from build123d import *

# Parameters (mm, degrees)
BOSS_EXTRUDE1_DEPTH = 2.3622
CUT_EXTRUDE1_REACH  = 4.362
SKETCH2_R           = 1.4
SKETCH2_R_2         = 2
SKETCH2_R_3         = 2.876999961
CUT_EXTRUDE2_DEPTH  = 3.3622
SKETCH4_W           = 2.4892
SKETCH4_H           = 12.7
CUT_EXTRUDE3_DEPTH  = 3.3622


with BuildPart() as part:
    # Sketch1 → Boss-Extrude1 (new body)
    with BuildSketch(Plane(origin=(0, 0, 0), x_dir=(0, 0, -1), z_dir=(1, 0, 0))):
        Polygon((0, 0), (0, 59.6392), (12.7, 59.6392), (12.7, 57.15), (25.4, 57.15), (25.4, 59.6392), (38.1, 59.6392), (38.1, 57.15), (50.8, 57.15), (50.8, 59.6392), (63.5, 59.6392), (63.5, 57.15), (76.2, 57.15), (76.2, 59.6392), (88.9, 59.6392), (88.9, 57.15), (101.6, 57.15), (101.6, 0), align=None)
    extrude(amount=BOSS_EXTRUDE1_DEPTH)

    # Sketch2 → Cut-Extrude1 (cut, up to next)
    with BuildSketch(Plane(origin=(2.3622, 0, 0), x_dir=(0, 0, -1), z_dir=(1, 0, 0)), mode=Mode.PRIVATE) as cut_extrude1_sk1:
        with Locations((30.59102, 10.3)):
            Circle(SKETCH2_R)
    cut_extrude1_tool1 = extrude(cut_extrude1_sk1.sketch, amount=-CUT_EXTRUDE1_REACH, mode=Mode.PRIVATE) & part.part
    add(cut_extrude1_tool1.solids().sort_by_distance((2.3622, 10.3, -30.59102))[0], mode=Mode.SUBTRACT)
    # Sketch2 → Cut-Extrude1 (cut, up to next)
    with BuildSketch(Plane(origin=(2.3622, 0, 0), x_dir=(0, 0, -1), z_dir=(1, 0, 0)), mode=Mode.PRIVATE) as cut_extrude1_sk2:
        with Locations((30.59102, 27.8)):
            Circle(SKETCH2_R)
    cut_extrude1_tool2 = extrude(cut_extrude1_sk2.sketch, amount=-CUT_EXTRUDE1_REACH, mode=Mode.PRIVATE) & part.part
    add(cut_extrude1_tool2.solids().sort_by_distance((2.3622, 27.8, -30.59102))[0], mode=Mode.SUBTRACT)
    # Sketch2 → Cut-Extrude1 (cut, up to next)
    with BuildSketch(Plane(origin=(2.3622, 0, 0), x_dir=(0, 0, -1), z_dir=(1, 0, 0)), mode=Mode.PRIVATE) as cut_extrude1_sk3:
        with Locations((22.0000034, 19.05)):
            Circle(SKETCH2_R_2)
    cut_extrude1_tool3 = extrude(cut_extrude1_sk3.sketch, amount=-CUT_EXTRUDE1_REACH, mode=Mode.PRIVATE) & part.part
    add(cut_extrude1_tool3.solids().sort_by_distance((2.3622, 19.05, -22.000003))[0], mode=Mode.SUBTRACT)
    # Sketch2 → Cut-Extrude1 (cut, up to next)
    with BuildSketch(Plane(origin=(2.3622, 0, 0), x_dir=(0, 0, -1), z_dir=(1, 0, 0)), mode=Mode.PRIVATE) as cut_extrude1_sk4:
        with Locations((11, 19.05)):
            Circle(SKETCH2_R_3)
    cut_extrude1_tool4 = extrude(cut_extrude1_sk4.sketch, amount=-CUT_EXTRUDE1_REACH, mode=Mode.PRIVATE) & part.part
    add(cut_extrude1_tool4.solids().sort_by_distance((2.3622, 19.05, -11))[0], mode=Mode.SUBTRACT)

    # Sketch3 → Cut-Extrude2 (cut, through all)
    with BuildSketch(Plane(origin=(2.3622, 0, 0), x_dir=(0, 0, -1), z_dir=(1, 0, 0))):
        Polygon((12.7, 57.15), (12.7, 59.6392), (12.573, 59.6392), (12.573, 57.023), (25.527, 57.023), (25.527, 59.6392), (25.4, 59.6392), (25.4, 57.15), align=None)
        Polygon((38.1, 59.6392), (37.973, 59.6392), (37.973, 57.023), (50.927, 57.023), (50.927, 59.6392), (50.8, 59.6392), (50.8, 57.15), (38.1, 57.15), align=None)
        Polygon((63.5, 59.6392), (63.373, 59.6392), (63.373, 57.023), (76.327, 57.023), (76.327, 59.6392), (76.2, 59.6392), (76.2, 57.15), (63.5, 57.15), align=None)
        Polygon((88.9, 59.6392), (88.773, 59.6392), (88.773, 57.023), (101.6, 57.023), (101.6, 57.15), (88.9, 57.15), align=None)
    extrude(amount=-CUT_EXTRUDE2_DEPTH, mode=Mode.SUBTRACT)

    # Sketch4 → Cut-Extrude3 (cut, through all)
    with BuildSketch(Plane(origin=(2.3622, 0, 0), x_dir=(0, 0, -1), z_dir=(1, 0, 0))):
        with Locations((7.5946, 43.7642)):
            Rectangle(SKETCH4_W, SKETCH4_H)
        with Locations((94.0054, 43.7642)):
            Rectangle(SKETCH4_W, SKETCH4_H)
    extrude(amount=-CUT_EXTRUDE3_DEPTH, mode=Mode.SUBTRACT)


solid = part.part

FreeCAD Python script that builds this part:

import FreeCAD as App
import Part
import Sketcher
Q = App.Units.Quantity

doc = App.newDocument("Part")
body = doc.addObject("PartDesign::Body", "Body")

sketch1 = body.newObject("Sketcher::SketchObject", "Sketch")
sketch1.AttachmentSupport = (doc.getObject("YZ_Plane"), [""])
sketch1.MapMode = "FlatFace"
sketch1.addGeometry(Part.LineSegment(App.Vector(59.6392, 0, 0), App.Vector(0, 0, 0)), False)
sketch1.addGeometry(Part.LineSegment(App.Vector(0, 0, 0), App.Vector(0, -101.6, 0)), False)
sketch1.addGeometry(Part.LineSegment(App.Vector(0, -101.6, 0), App.Vector(57.15, -101.6, 0)), False)
sketch1.addGeometry(Part.LineSegment(App.Vector(57.15, -101.6, 0), App.Vector(57.15, -88.9, 0)), False)
sketch1.addGeometry(Part.LineSegment(App.Vector(57.15, -88.9, 0), App.Vector(59.6392, -88.9, 0)), False)
sketch1.addGeometry(Part.LineSegment(App.Vector(59.6392, -88.9, 0), App.Vector(59.6392, -76.2, 0)), False)
sketch1.addGeometry(Part.LineSegment(App.Vector(59.6392, -76.2, 0), App.Vector(57.15, -76.2, 0)), False)
sketch1.addGeometry(Part.LineSegment(App.Vector(57.15, -76.2, 0), App.Vector(57.15, -63.5, 0)), False)
sketch1.addGeometry(Part.LineSegment(App.Vector(57.15, -63.5, 0), App.Vector(59.6392, -63.5, 0)), False)
sketch1.addGeometry(Part.LineSegment(App.Vector(59.6392, -63.5, 0), App.Vector(59.6392, -50.8, 0)), False)
sketch1.addGeometry(Part.LineSegment(App.Vector(59.6392, -50.8, 0), App.Vector(57.15, -50.8, 0)), False)
sketch1.addGeometry(Part.LineSegment(App.Vector(57.15, -50.8, 0), App.Vector(57.15, -38.1, 0)), False)
sketch1.addGeometry(Part.LineSegment(App.Vector(57.15, -38.1, 0), App.Vector(59.6392, -38.1, 0)), False)
sketch1.addGeometry(Part.LineSegment(App.Vector(59.6392, -38.1, 0), App.Vector(59.6392, -25.4, 0)), False)
sketch1.addGeometry(Part.LineSegment(App.Vector(59.6392, -25.4, 0), App.Vector(57.15, -25.4, 0)), False)
sketch1.addGeometry(Part.LineSegment(App.Vector(57.15, -25.4, 0), App.Vector(57.15, -12.7, 0)), False)
sketch1.addGeometry(Part.LineSegment(App.Vector(57.15, -12.7, 0), App.Vector(59.6392, -12.7, 0)), False)
sketch1.addGeometry(Part.LineSegment(App.Vector(59.6392, -12.7, 0), App.Vector(59.6392, 0, 0)), False)
sketch1.addConstraint(Sketcher.Constraint("Coincident", 0, 2, 1, 1))
sketch1.addConstraint(Sketcher.Constraint("Coincident", 1, 2, 2, 1))
sketch1.addConstraint(Sketcher.Constraint("Coincident", 2, 2, 3, 1))
sketch1.addConstraint(Sketcher.Constraint("Coincident", 3, 2, 4, 1))
sketch1.addConstraint(Sketcher.Constraint("Coincident", 4, 2, 5, 1))
sketch1.addConstraint(Sketcher.Constraint("Coincident", 5, 2, 6, 1))
sketch1.addConstraint(Sketcher.Constraint("Coincident", 6, 2, 7, 1))
sketch1.addConstraint(Sketcher.Constraint("Coincident", 7, 2, 8, 1))
sketch1.addConstraint(Sketcher.Constraint("Coincident", 8, 2, 9, 1))
sketch1.addConstraint(Sketcher.Constraint("Coincident", 9, 2, 10, 1))
sketch1.addConstraint(Sketcher.Constraint("Coincident", 10, 2, 11, 1))
sketch1.addConstraint(Sketcher.Constraint("Coincident", 11, 2, 12, 1))
sketch1.addConstraint(Sketcher.Constraint("Coincident", 12, 2, 13, 1))
sketch1.addConstraint(Sketcher.Constraint("Coincident", 13, 2, 14, 1))
sketch1.addConstraint(Sketcher.Constraint("Coincident", 14, 2, 15, 1))
sketch1.addConstraint(Sketcher.Constraint("Coincident", 15, 2, 16, 1))
sketch1.addConstraint(Sketcher.Constraint("Coincident", 16, 2, 17, 1))
sketch1.addConstraint(Sketcher.Constraint("Coincident", 17, 2, 0, 1))
sketch1.addConstraint(Sketcher.Constraint("Horizontal", 0))
sketch1.addConstraint(Sketcher.Constraint("Vertical", 1))
sketch1.addConstraint(Sketcher.Constraint("Horizontal", 2))
sketch1.addConstraint(Sketcher.Constraint("Vertical", 3))
sketch1.addConstraint(Sketcher.Constraint("Horizontal", 4))
sketch1.addConstraint(Sketcher.Constraint("Vertical", 5))
sketch1.addConstraint(Sketcher.Constraint("Horizontal", 6))
sketch1.addConstraint(Sketcher.Constraint("Vertical", 7))
sketch1.addConstraint(Sketcher.Constraint("Horizontal", 8))
sketch1.addConstraint(Sketcher.Constraint("Vertical", 9))
sketch1.addConstraint(Sketcher.Constraint("Horizontal", 10))
sketch1.addConstraint(Sketcher.Constraint("Vertical", 11))
sketch1.addConstraint(Sketcher.Constraint("Horizontal", 12))
sketch1.addConstraint(Sketcher.Constraint("Vertical", 13))
sketch1.addConstraint(Sketcher.Constraint("Horizontal", 14))
sketch1.addConstraint(Sketcher.Constraint("Vertical", 15))
sketch1.addConstraint(Sketcher.Constraint("Horizontal", 16))
sketch1.addConstraint(Sketcher.Constraint("Vertical", 17))
sketch1.addConstraint(Sketcher.Constraint("Coincident", 0, 2, -1, 1))
sketch1.addConstraint(Sketcher.Constraint("Vertical", 3, 2, 6, 2))
sketch1.addConstraint(Sketcher.Constraint("Vertical", 5, 2, 8, 2))
sketch1.addConstraint(Sketcher.Constraint("Vertical", 7, 2, 10, 2))
sketch1.addConstraint(Sketcher.Constraint("Vertical", 9, 2, 12, 2))
sketch1.addConstraint(Sketcher.Constraint("Vertical", 11, 2, 14, 2))
sketch1.addConstraint(Sketcher.Constraint("Vertical", 13, 2, 16, 2))
sketch1.addConstraint(Sketcher.Constraint("Equal", 3, 5))
sketch1.addConstraint(Sketcher.Constraint("Equal", 5, 7))
sketch1.addConstraint(Sketcher.Constraint("Equal", 7, 9))
sketch1.addConstraint(Sketcher.Constraint("Equal", 9, 11))
sketch1.addConstraint(Sketcher.Constraint("Equal", 11, 13))
sketch1.addConstraint(Sketcher.Constraint("Equal", 13, 15))
sketch1.addConstraint(Sketcher.Constraint("Equal", 15, 17))
sketch1.addConstraint(Sketcher.Constraint("DistanceY", 1, 2, 1, 1, Q("4 in")))
sketch1.addConstraint(Sketcher.Constraint("DistanceX", 2, 1, 2, 2, Q("2.25 in")))
sketch1.addConstraint(Sketcher.Constraint("DistanceX", 0, 2, 0, 1, Q("2.348 in")))
pad1 = body.newObject("PartDesign::Pad", "Pad")
pad1.Profile = sketch1
pad1.Length = Q("0.093 in")

sketch2 = body.newObject("Sketcher::SketchObject", "Sketch001")
sketch2.AttachmentSupport = (doc.getObject("YZ_Plane"), [""])
sketch2.MapMode = "FlatFace"
sketch2.AttachmentOffset = App.Placement(App.Vector(0, 0, 0.093 * 25.4), App.Rotation())
sketch2.addGeometry(Part.Circle(App.Vector(10.3, -30.59102, 0), App.Vector(0, 0, 1), 1.4), False)
sketch2.addConstraint(Sketcher.Constraint("Diameter", 0, Q("2.8 mm")))
sketch2.addConstraint(Sketcher.Constraint("DistanceX", -1, 1, 0, 3, Q("10.3 mm")))
sketch2.addConstraint(Sketcher.Constraint("DistanceY", 0, 3, -1, 1, Q("30.59102 mm")))
pocket1 = body.newObject("PartDesign::Pocket", "Pocket")
pocket1.Profile = sketch2
pocket1.Type = "UpToFirst"

sketch3 = body.newObject("Sketcher::SketchObject", "Sketch002")
sketch3.AttachmentSupport = (doc.getObject("YZ_Plane"), [""])
sketch3.MapMode = "FlatFace"
sketch3.AttachmentOffset = App.Placement(App.Vector(0, 0, 0.093 * 25.4), App.Rotation())
sketch3.addGeometry(Part.Circle(App.Vector(27.8, -30.59102, 0), App.Vector(0, 0, 1), 1.4), False)
sketch3.addConstraint(Sketcher.Constraint("Diameter", 0, Q("2.8 mm")))
sketch3.addConstraint(Sketcher.Constraint("DistanceX", -1, 1, 0, 3, Q("27.8 mm")))
sketch3.addConstraint(Sketcher.Constraint("DistanceY", 0, 3, -1, 1, Q("30.59102 mm")))
pocket2 = body.newObject("PartDesign::Pocket", "Pocket001")
pocket2.Profile = sketch3
pocket2.Type = "UpToFirst"

sketch4 = body.newObject("Sketcher::SketchObject", "Sketch003")
sketch4.AttachmentSupport = (doc.getObject("YZ_Plane"), [""])
sketch4.MapMode = "FlatFace"
sketch4.AttachmentOffset = App.Placement(App.Vector(0, 0, 0.093 * 25.4), App.Rotation())
sketch4.addGeometry(Part.Circle(App.Vector(19.05, -22.000003, 0), App.Vector(0, 0, 1), 2), False)
sketch4.addConstraint(Sketcher.Constraint("Diameter", 0, Q("4 mm")))
sketch4.addConstraint(Sketcher.Constraint("DistanceX", -1, 1, 0, 3, Q("0.75 in")))
sketch4.addConstraint(Sketcher.Constraint("DistanceY", 0, 3, -1, 1, Q("22.000003 mm")))
pocket3 = body.newObject("PartDesign::Pocket", "Pocket002")
pocket3.Profile = sketch4
pocket3.Type = "UpToFirst"

sketch5 = body.newObject("Sketcher::SketchObject", "Sketch004")
sketch5.AttachmentSupport = (doc.getObject("YZ_Plane"), [""])
sketch5.MapMode = "FlatFace"
sketch5.AttachmentOffset = App.Placement(App.Vector(0, 0, 0.093 * 25.4), App.Rotation())
sketch5.addGeometry(Part.Circle(App.Vector(19.05, -11, 0), App.Vector(0, 0, 1), 2.877), False)
sketch5.addConstraint(Sketcher.Constraint("Diameter", 0, Q("5.754 mm")))
sketch5.addConstraint(Sketcher.Constraint("DistanceX", -1, 1, 0, 3, Q("0.75 in")))
sketch5.addConstraint(Sketcher.Constraint("DistanceY", 0, 3, -1, 1, Q("11 mm")))
pocket4 = body.newObject("PartDesign::Pocket", "Pocket003")
pocket4.Profile = sketch5
pocket4.Type = "UpToFirst"

sketch6 = body.newObject("Sketcher::SketchObject", "Sketch005")
sketch6.AttachmentSupport = (doc.getObject("YZ_Plane"), [""])
sketch6.MapMode = "FlatFace"
sketch6.AttachmentOffset = App.Placement(App.Vector(0, 0, 0.093 * 25.4), App.Rotation())
sketch6.addGeometry(Part.LineSegment(App.Vector(57.15, -12.7, 0), App.Vector(59.6392, -12.7, 0)), False)
sketch6.addGeometry(Part.LineSegment(App.Vector(59.6392, -12.7, 0), App.Vector(59.6392, -12.573, 0)), False)
sketch6.addGeometry(Part.LineSegment(App.Vector(59.6392, -12.573, 0), App.Vector(57.023, -12.573, 0)), False)
sketch6.addGeometry(Part.LineSegment(App.Vector(57.023, -12.573, 0), App.Vector(57.023, -25.527, 0)), False)
sketch6.addGeometry(Part.LineSegment(App.Vector(57.023, -25.527, 0), App.Vector(59.6392, -25.527, 0)), False)
sketch6.addGeometry(Part.LineSegment(App.Vector(59.6392, -25.527, 0), App.Vector(59.6392, -25.4, 0)), False)
sketch6.addGeometry(Part.LineSegment(App.Vector(59.6392, -25.4, 0), App.Vector(57.15, -25.4, 0)), False)
sketch6.addGeometry(Part.LineSegment(App.Vector(57.15, -25.4, 0), App.Vector(57.15, -12.7, 0)), False)
sketch6.addGeometry(Part.LineSegment(App.Vector(59.6392, -38.1, 0), App.Vector(59.6392, -37.973, 0)), False)
sketch6.addGeometry(Part.LineSegment(App.Vector(59.6392, -37.973, 0), App.Vector(57.023, -37.973, 0)), False)
sketch6.addGeometry(Part.LineSegment(App.Vector(57.023, -37.973, 0), App.Vector(57.023, -50.927, 0)), False)
sketch6.addGeometry(Part.LineSegment(App.Vector(57.023, -50.927, 0), App.Vector(59.6392, -50.927, 0)), False)
sketch6.addGeometry(Part.LineSegment(App.Vector(59.6392, -50.927, 0), App.Vector(59.6392, -50.8, 0)), False)
sketch6.addGeometry(Part.LineSegment(App.Vector(59.6392, -50.8, 0), App.Vector(57.15, -50.8, 0)), False)
sketch6.addGeometry(Part.LineSegment(App.Vector(57.15, -50.8, 0), App.Vector(57.15, -38.1, 0)), False)
sketch6.addGeometry(Part.LineSegment(App.Vector(57.15, -38.1, 0), App.Vector(59.6392, -38.1, 0)), False)
sketch6.addGeometry(Part.LineSegment(App.Vector(59.6392, -63.5, 0), App.Vector(59.6392, -63.373, 0)), False)
sketch6.addGeometry(Part.LineSegment(App.Vector(59.6392, -63.373, 0), App.Vector(57.023, -63.373, 0)), False)
sketch6.addGeometry(Part.LineSegment(App.Vector(57.023, -63.373, 0), App.Vector(57.023, -76.327, 0)), False)
sketch6.addGeometry(Part.LineSegment(App.Vector(57.023, -76.327, 0), App.Vector(59.6392, -76.327, 0)), False)
sketch6.addGeometry(Part.LineSegment(App.Vector(59.6392, -76.327, 0), App.Vector(59.6392, -76.2, 0)), False)
sketch6.addGeometry(Part.LineSegment(App.Vector(59.6392, -76.2, 0), App.Vector(57.15, -76.2, 0)), False)
sketch6.addGeometry(Part.LineSegment(App.Vector(57.15, -76.2, 0), App.Vector(57.15, -63.5, 0)), False)
sketch6.addGeometry(Part.LineSegment(App.Vector(57.15, -63.5, 0), App.Vector(59.6392, -63.5, 0)), False)
sketch6.addGeometry(Part.LineSegment(App.Vector(59.6392, -88.9, 0), App.Vector(59.6392, -88.773, 0)), False)
sketch6.addGeometry(Part.LineSegment(App.Vector(59.6392, -88.773, 0), App.Vector(57.023, -88.773, 0)), False)
sketch6.addGeometry(Part.LineSegment(App.Vector(57.023, -88.773, 0), App.Vector(57.023, -101.6, 0)), False)
sketch6.addGeometry(Part.LineSegment(App.Vector(57.023, -101.6, 0), App.Vector(57.15, -101.6, 0)), False)
sketch6.addGeometry(Part.LineSegment(App.Vector(57.15, -101.6, 0), App.Vector(57.15, -88.9, 0)), False)
sketch6.addGeometry(Part.LineSegment(App.Vector(57.15, -88.9, 0), App.Vector(59.6392, -88.9, 0)), False)
sketch6.addConstraint(Sketcher.Constraint("Coincident", 0, 2, 1, 1))
sketch6.addConstraint(Sketcher.Constraint("Coincident", 1, 2, 2, 1))
sketch6.addConstraint(Sketcher.Constraint("Coincident", 2, 2, 3, 1))
sketch6.addConstraint(Sketcher.Constraint("Coincident", 3, 2, 4, 1))
sketch6.addConstraint(Sketcher.Constraint("Coincident", 4, 2, 5, 1))
sketch6.addConstraint(Sketcher.Constraint("Coincident", 5, 2, 6, 1))
sketch6.addConstraint(Sketcher.Constraint("Coincident", 6, 2, 7, 1))
sketch6.addConstraint(Sketcher.Constraint("Coincident", 7, 2, 0, 1))
sketch6.addConstraint(Sketcher.Constraint("Coincident", 8, 2, 9, 1))
sketch6.addConstraint(Sketcher.Constraint("Coincident", 9, 2, 10, 1))
sketch6.addConstraint(Sketcher.Constraint("Coincident", 10, 2, 11, 1))
sketch6.addConstraint(Sketcher.Constraint("Coincident", 11, 2, 12, 1))
sketch6.addConstraint(Sketcher.Constraint("Coincident", 12, 2, 13, 1))
sketch6.addConstraint(Sketcher.Constraint("Coincident", 13, 2, 14, 1))
sketch6.addConstraint(Sketcher.Constraint("Coincident", 14, 2, 15, 1))
sketch6.addConstraint(Sketcher.Constraint("Coincident", 15, 2, 8, 1))
sketch6.addConstraint(Sketcher.Constraint("Coincident", 16, 2, 17, 1))
sketch6.addConstraint(Sketcher.Constraint("Coincident", 17, 2, 18, 1))
sketch6.addConstraint(Sketcher.Constraint("Coincident", 18, 2, 19, 1))
sketch6.addConstraint(Sketcher.Constraint("Coincident", 19, 2, 20, 1))
sketch6.addConstraint(Sketcher.Constraint("Coincident", 20, 2, 21, 1))
sketch6.addConstraint(Sketcher.Constraint("Coincident", 21, 2, 22, 1))
sketch6.addConstraint(Sketcher.Constraint("Coincident", 22, 2, 23, 1))
sketch6.addConstraint(Sketcher.Constraint("Coincident", 23, 2, 16, 1))
sketch6.addConstraint(Sketcher.Constraint("Coincident", 24, 2, 25, 1))
sketch6.addConstraint(Sketcher.Constraint("Coincident", 25, 2, 26, 1))
sketch6.addConstraint(Sketcher.Constraint("Coincident", 26, 2, 27, 1))
sketch6.addConstraint(Sketcher.Constraint("Coincident", 27, 2, 28, 1))
sketch6.addConstraint(Sketcher.Constraint("Coincident", 28, 2, 29, 1))
sketch6.addConstraint(Sketcher.Constraint("Coincident", 29, 2, 24, 1))
sketch6.addConstraint(Sketcher.Constraint("Horizontal", 0))
sketch6.addConstraint(Sketcher.Constraint("Vertical", 1))
sketch6.addConstraint(Sketcher.Constraint("Horizontal", 2))
sketch6.addConstraint(Sketcher.Constraint("Vertical", 3))
sketch6.addConstraint(Sketcher.Constraint("Horizontal", 4))
sketch6.addConstraint(Sketcher.Constraint("Vertical", 5))
sketch6.addConstraint(Sketcher.Constraint("Horizontal", 6))
sketch6.addConstraint(Sketcher.Constraint("Vertical", 7))
sketch6.addConstraint(Sketcher.Constraint("Vertical", 8))
sketch6.addConstraint(Sketcher.Constraint("Horizontal", 9))
sketch6.addConstraint(Sketcher.Constraint("Vertical", 10))
sketch6.addConstraint(Sketcher.Constraint("Horizontal", 11))
sketch6.addConstraint(Sketcher.Constraint("Vertical", 12))
sketch6.addConstraint(Sketcher.Constraint("Horizontal", 13))
sketch6.addConstraint(Sketcher.Constraint("Vertical", 14))
sketch6.addConstraint(Sketcher.Constraint("Horizontal", 15))
sketch6.addConstraint(Sketcher.Constraint("Vertical", 16))
sketch6.addConstraint(Sketcher.Constraint("Horizontal", 17))
sketch6.addConstraint(Sketcher.Constraint("Vertical", 18))
sketch6.addConstraint(Sketcher.Constraint("Horizontal", 19))
sketch6.addConstraint(Sketcher.Constraint("Vertical", 20))
sketch6.addConstraint(Sketcher.Constraint("Horizontal", 21))
sketch6.addConstraint(Sketcher.Constraint("Vertical", 22))
sketch6.addConstraint(Sketcher.Constraint("Horizontal", 23))
sketch6.addConstraint(Sketcher.Constraint("Vertical", 24))
sketch6.addConstraint(Sketcher.Constraint("Horizontal", 25))
sketch6.addConstraint(Sketcher.Constraint("Vertical", 26))
sketch6.addConstraint(Sketcher.Constraint("Horizontal", 27))
sketch6.addConstraint(Sketcher.Constraint("Vertical", 28))
sketch6.addConstraint(Sketcher.Constraint("Horizontal", 29))
sketch6.addConstraint(Sketcher.Constraint("Vertical", 1, 2, 4, 2))
sketch6.addConstraint(Sketcher.Constraint("Vertical", 5, 2, 8, 2))
sketch6.addConstraint(Sketcher.Constraint("Vertical", 3, 2, 9, 2))
sketch6.addConstraint(Sketcher.Constraint("Vertical", 8, 2, 11, 2))
sketch6.addConstraint(Sketcher.Constraint("Vertical", 7, 2, 13, 2))
sketch6.addConstraint(Sketcher.Constraint("Vertical", 15, 2, 16, 2))
sketch6.addConstraint(Sketcher.Constraint("Vertical", 10, 2, 17, 2))
sketch6.addConstraint(Sketcher.Constraint("Vertical", 16, 2, 19, 2))
sketch6.addConstraint(Sketcher.Constraint("Vertical", 14, 2, 21, 2))
sketch6.addConstraint(Sketcher.Constraint("Vertical", 23, 2, 24, 2))
sketch6.addConstraint(Sketcher.Constraint("Vertical", 18, 2, 25, 2))
sketch6.addConstraint(Sketcher.Constraint("Vertical", 22, 2, 27, 2))
sketch6.addConstraint(Sketcher.Constraint("Equal", 27, 1))
sketch6.addConstraint(Sketcher.Constraint("Equal", 1, 5))
sketch6.addConstraint(Sketcher.Constraint("Equal", 5, 8))
sketch6.addConstraint(Sketcher.Constraint("Equal", 3, 10))
sketch6.addConstraint(Sketcher.Constraint("Equal", 8, 12))
sketch6.addConstraint(Sketcher.Constraint("Equal", 12, 16))
sketch6.addConstraint(Sketcher.Constraint("Equal", 10, 18))
sketch6.addConstraint(Sketcher.Constraint("Equal", 16, 20))
sketch6.addConstraint(Sketcher.Constraint("Equal", 20, 24))
sketch6.addConstraint(Sketcher.Constraint("Equal", 22, 28))
sketch6.addConstraint(Sketcher.Constraint("DistanceY", 7, 1, 7, 2, Q("0.5 in")))
sketch6.addConstraint(Sketcher.Constraint("DistanceY", 5, 2, -1, 1, Q("1 in")))
sketch6.addConstraint(Sketcher.Constraint("DistanceY", 12, 2, -1, 1, Q("2 in")))
sketch6.addConstraint(Sketcher.Constraint("DistanceY", 20, 2, -1, 1, Q("3 in")))
sketch6.addConstraint(Sketcher.Constraint("DistanceY", 26, 2, -1, 1, Q("4 in")))
sketch6.addConstraint(Sketcher.Constraint("DistanceY", 3, 2, 3, 1, Q("0.51 in")))
sketch6.addConstraint(Sketcher.Constraint("DistanceX", 0, 1, 0, 2, Q("0.098 in")))
sketch6.addConstraint(Sketcher.Constraint("DistanceX", -1, 1, 6, 2, Q("2.25 in")))
pocket5 = body.newObject("PartDesign::Pocket", "Pocket004")
pocket5.Profile = sketch6
pocket5.Type = "ThroughAll"

sketch7 = body.newObject("Sketcher::SketchObject", "Sketch006")
sketch7.AttachmentSupport = (doc.getObject("YZ_Plane"), [""])
sketch7.MapMode = "FlatFace"
sketch7.AttachmentOffset = App.Placement(App.Vector(0, 0, 0.093 * 25.4), App.Rotation())
sketch7.addGeometry(Part.LineSegment(App.Vector(50.1142, -6.35, 0), App.Vector(37.4142, -6.35, 0)), False)
sketch7.addGeometry(Part.LineSegment(App.Vector(37.4142, -6.35, 0), App.Vector(37.4142, -8.8392, 0)), False)
sketch7.addGeometry(Part.LineSegment(App.Vector(37.4142, -8.8392, 0), App.Vector(50.1142, -8.8392, 0)), False)
sketch7.addGeometry(Part.LineSegment(App.Vector(50.1142, -8.8392, 0), App.Vector(50.1142, -6.35, 0)), False)
sketch7.addGeometry(Part.LineSegment(App.Vector(50.1142, -92.7608, 0), App.Vector(37.4142, -92.7608, 0)), False)
sketch7.addGeometry(Part.LineSegment(App.Vector(37.4142, -92.7608, 0), App.Vector(37.4142, -95.25, 0)), False)
sketch7.addGeometry(Part.LineSegment(App.Vector(37.4142, -95.25, 0), App.Vector(50.1142, -95.25, 0)), False)
sketch7.addGeometry(Part.LineSegment(App.Vector(50.1142, -95.25, 0), App.Vector(50.1142, -92.7608, 0)), False)
sketch7.addConstraint(Sketcher.Constraint("Coincident", 0, 2, 1, 1))
sketch7.addConstraint(Sketcher.Constraint("Coincident", 1, 2, 2, 1))
sketch7.addConstraint(Sketcher.Constraint("Coincident", 2, 2, 3, 1))
sketch7.addConstraint(Sketcher.Constraint("Coincident", 3, 2, 0, 1))
sketch7.addConstraint(Sketcher.Constraint("Coincident", 4, 2, 5, 1))
sketch7.addConstraint(Sketcher.Constraint("Coincident", 5, 2, 6, 1))
sketch7.addConstraint(Sketcher.Constraint("Coincident", 6, 2, 7, 1))
sketch7.addConstraint(Sketcher.Constraint("Coincident", 7, 2, 4, 1))
sketch7.addConstraint(Sketcher.Constraint("Horizontal", 0))
sketch7.addConstraint(Sketcher.Constraint("Vertical", 1))
sketch7.addConstraint(Sketcher.Constraint("Horizontal", 2))
sketch7.addConstraint(Sketcher.Constraint("Vertical", 3))
sketch7.addConstraint(Sketcher.Constraint("Horizontal", 4))
sketch7.addConstraint(Sketcher.Constraint("Vertical", 5))
sketch7.addConstraint(Sketcher.Constraint("Horizontal", 6))
sketch7.addConstraint(Sketcher.Constraint("Vertical", 7))
sketch7.addConstraint(Sketcher.Constraint("Vertical", 1, 2, 4, 2))
sketch7.addConstraint(Sketcher.Constraint("Vertical", 3, 2, 6, 2))
sketch7.addConstraint(Sketcher.Constraint("Equal", 3, 5))
sketch7.addConstraint(Sketcher.Constraint("DistanceX", 0, 2, 0, 1, Q("0.5 in")))
sketch7.addConstraint(Sketcher.Constraint("DistanceY", 5, 2, 0, 2, Q("3.5 in")))
sketch7.addConstraint(Sketcher.Constraint("DistanceY", 1, 2, 1, 1, Q("0.098 in")))
sketch7.addConstraint(Sketcher.Constraint("DistanceY", 0, 2, -1, 1, Q("0.25 in")))
sketch7.addConstraint(Sketcher.Constraint("DistanceX", -1, 1, 0, 2, Q("1.473 in")))
pocket6 = body.newObject("PartDesign::Pocket", "Pocket005")
pocket6.Profile = sketch7
pocket6.Type = "ThroughAll"

doc.recompute()
